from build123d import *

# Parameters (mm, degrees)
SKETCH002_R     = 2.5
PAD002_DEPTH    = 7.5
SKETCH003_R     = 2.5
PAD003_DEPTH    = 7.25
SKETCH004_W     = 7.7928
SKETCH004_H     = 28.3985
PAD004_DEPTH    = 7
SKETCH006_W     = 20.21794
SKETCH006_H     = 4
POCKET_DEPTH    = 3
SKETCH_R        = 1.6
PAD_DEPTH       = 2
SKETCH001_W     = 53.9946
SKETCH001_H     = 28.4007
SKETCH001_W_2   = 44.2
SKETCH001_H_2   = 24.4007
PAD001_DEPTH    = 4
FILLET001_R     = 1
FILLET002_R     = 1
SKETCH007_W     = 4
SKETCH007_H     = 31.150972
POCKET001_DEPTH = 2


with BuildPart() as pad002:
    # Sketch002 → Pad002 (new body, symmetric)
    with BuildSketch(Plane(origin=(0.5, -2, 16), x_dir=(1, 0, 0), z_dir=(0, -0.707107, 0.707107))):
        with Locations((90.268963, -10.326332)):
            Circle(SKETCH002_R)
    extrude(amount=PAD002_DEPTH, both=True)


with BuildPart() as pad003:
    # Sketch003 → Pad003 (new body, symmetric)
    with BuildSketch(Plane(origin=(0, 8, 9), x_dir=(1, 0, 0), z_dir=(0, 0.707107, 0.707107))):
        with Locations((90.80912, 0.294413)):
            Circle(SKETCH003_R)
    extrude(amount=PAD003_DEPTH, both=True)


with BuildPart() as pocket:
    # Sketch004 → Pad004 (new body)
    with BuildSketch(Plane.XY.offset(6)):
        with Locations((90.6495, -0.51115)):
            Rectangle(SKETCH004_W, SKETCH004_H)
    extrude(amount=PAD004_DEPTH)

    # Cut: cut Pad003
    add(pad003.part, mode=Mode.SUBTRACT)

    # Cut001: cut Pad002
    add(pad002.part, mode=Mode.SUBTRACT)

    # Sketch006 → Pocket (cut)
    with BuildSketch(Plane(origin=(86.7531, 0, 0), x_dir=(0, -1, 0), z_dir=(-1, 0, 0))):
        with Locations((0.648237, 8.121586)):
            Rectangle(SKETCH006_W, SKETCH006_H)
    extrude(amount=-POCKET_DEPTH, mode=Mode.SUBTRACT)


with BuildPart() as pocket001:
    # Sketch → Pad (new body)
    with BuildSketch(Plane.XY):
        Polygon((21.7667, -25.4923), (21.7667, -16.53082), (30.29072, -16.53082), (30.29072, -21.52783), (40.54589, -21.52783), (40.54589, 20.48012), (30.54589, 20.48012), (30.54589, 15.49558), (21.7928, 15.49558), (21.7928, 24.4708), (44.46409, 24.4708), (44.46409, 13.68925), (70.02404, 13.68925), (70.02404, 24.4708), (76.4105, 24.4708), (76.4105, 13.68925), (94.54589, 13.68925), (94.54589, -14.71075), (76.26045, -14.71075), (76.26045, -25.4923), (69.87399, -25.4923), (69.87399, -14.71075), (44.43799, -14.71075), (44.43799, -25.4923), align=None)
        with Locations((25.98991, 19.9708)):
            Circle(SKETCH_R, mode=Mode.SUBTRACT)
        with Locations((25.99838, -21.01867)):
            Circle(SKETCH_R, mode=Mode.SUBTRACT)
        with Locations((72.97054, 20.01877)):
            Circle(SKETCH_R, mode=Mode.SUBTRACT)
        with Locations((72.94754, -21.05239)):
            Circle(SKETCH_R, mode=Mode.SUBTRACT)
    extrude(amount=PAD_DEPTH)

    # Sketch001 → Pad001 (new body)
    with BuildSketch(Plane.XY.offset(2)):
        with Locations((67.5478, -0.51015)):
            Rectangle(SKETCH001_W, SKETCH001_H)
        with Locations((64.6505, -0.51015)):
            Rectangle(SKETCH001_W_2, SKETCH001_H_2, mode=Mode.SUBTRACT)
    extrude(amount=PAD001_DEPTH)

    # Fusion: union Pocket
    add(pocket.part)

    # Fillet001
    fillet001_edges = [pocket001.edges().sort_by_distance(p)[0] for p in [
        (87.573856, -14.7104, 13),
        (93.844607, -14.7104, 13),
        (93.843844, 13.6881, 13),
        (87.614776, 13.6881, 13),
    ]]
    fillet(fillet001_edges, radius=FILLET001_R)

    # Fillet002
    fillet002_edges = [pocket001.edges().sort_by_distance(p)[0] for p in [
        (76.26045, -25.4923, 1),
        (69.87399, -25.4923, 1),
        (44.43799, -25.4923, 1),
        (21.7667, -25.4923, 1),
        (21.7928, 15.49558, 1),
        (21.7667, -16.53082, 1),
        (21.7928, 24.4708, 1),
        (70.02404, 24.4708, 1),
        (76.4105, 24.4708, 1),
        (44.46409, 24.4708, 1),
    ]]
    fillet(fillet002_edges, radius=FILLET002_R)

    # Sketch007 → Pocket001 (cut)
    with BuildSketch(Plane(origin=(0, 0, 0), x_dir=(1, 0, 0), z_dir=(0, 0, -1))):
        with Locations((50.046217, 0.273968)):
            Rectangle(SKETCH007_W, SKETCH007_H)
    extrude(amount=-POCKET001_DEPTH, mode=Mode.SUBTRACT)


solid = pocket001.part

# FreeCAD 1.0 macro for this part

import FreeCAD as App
import Part
import Sketcher
from FreeCAD import Vector
Q = App.Units.Quantity


def edges_at(feature, points):
    """Names of the edges that pass closest to the given points."""
    edges = feature.Shape.Edges
    near = lambda p: min(range(len(edges)), key=lambda i: edges[i].distToShape(Part.Vertex(*p))[0])
    return sorted({f"Edge{near(p) + 1}" for p in points})


def add_polygon(sketch, points):
    """Adds a closed chain of lines whose ends are joined by coincident constraints."""
    first, n = sketch.GeometryCount, len(points)
    for a, b in zip(points, points[1:] + points[:1]):
        sketch.addGeometry(Part.LineSegment(App.Vector(*a, 0), App.Vector(*b, 0)), False)
    for i in range(n):
        sketch.addConstraint(Sketcher.Constraint("Coincident", first + i, 2, first + (i + 1) % n, 1))

doc = App.newDocument("Part")
body = doc.addObject("PartDesign::Body", "Body")

# Sketch on an angled plane
sketch1 = doc.addObject("Sketcher::SketchObject", "Sketch")
body.addObject(sketch1)
sketch1.Placement = App.Placement(Vector(0.5, -2, 16), App.Rotation(Vector(1, 0, 0), Vector(0, 0.707106781, 0.707106781), Vector(0, -0.707106781, 0.707106781), "ZXY"))
sketch1.addGeometry(Part.Circle(Vector(90.3, -10.3, 0), Vector(0, 0, 1), 2.5), False)
sketch1.addConstraint(Sketcher.Constraint("Diameter", 0, Q("5 mm")))
sketch1.addConstraint(Sketcher.Constraint("DistanceY", 0, 3, -1, 1, Q("10.326332 mm")))
sketch1.addConstraint(Sketcher.Constraint("DistanceX", -1, 1, 0, 3, Q("90.268963 mm")))
pad1 = doc.addObject("PartDesign::Pad", "Pad")
body.addObject(pad1)
pad1.Profile = sketch1
pad1.Length = 15
pad1.Midplane = True
body2 = doc.addObject("PartDesign::Body", "Body001")

# Sketch on an angled plane
sketch2 = doc.addObject("Sketcher::SketchObject", "Sketch001")
body2.addObject(sketch2)
sketch2.Placement = App.Placement(Vector(0, 8, 9), App.Rotation(Vector(1, 0, 0), Vector(0, 0.707106781, -0.707106781), Vector(0, 0.707106781, 0.707106781), "ZXY"))
sketch2.addGeometry(Part.Circle(Vector(90.8, 0.3, 0), Vector(0, 0, 1), 2.5), False)
sketch2.addConstraint(Sketcher.Constraint("Diameter", 0, Q("5 mm")))
sketch2.addConstraint(Sketcher.Constraint("DistanceX", -1, 1, 0, 3, Q("90.80912 mm")))
sketch2.addConstraint(Sketcher.Constraint("DistanceY", -1, 1, 0, 3, Q("0.294413 mm")))
pad2 = doc.addObject("PartDesign::Pad", "Pad001")
body2.addObject(pad2)
pad2.Profile = sketch2
pad2.Length = 14.5
pad2.Midplane = True
body3 = doc.addObject("PartDesign::Body", "Body002")

# Sketch on XY plane
sketch3 = doc.addObject("Sketcher::SketchObject", "Sketch002")
body3.addObject(sketch3)
sketch3.AttachmentSupport = (doc.getObject("XY_Plane002"), [""])
sketch3.MapMode = "FlatFace"
sketch3.AttachmentOffset = App.Placement(Vector(0, 0, 6), App.Rotation())
add_polygon(sketch3, [(87, 14), (87, -15), (95, -15), (95, 14)])  # lines 0-3
sketch3.addConstraint(Sketcher.Constraint("Vertical", 0))
sketch3.addConstraint(Sketcher.Constraint("Horizontal", 1))
sketch3.addConstraint(Sketcher.Constraint("Vertical", 2))
sketch3.addConstraint(Sketcher.Constraint("Horizontal", 3))
sketch3.addConstraint(Sketcher.Constraint("DistanceX", 1, 1, 1, 2, Q("7.7928 mm")))
sketch3.addConstraint(Sketcher.Constraint("DistanceY", 0, 2, 0, 1, Q("28.3985 mm")))
sketch3.addConstraint(Sketcher.Constraint("DistanceX", -1, 1, 0, 2, Q("86.7531 mm")))
sketch3.addConstraint(Sketcher.Constraint("DistanceY", 0, 2, -1, 1, Q("14.7104 mm")))
pad3 = doc.addObject("PartDesign::Pad", "Pad002")
body3.addObject(pad3)
pad3.Profile = sketch3
pad3.Length = 7
doc.recompute()

boolean = doc.addObject("PartDesign::Boolean", "Boolean")
body3.addObject(boolean)
boolean.Type = "Cut"
boolean.addObjects([body2])
doc.recompute()

boolean2 = doc.addObject("PartDesign::Boolean", "Boolean001")
body3.addObject(boolean2)
boolean2.Type = "Cut"
boolean2.addObjects([body])

# Sketch on YZ plane
sketch4 = doc.addObject("Sketcher::SketchObject", "Sketch003")
body3.addObject(sketch4)
sketch4.AttachmentSupport = (doc.getObject("YZ_Plane002"), [""])
sketch4.MapMode = "FlatFace"
sketch4.AttachmentOffset = App.Placement(Vector(0, 0, 86.7531), App.Rotation())
add_polygon(sketch4, [(9.5, 10.1), (9.5, 6.1), (-10.8, 6.1), (-10.8, 10.1)])  # lines 0-3
sketch4.addConstraint(Sketcher.Constraint("Vertical", 0))
sketch4.addConstraint(Sketcher.Constraint("Horizontal", 1))
sketch4.addConstraint(Sketcher.Constraint("Vertical", 2))
sketch4.addConstraint(Sketcher.Constraint("Horizontal", 3))
sketch4.addConstraint(Sketcher.Constraint("DistanceY", 0, 2, 0, 1, Q("4 mm")))
sketch4.addConstraint(Sketcher.Constraint("DistanceX", 1, 2, 1, 1, Q("20.21794 mm")))
sketch4.addConstraint(Sketcher.Constraint("DistanceX", -1, 1, 0, 2, Q("9.460733 mm")))
sketch4.addConstraint(Sketcher.Constraint("DistanceY", -1, 1, 0, 2, Q("6.121586 mm")))
pocket1 = doc.addObject("PartDesign::Pocket", "Pocket")
body3.addObject(pocket1)
pocket1.Profile = sketch4
pocket1.Length = 3
pocket1.Reversed = True
body4 = doc.addObject("PartDesign::Body", "Body003")

# Sketch on XY plane
sketch5 = doc.addObject("Sketcher::SketchObject", "Sketch004")
body4.addObject(sketch5)
sketch5.AttachmentSupport = (doc.getObject("XY_Plane003"), [""])
sketch5.MapMode = "FlatFace"
add_polygon(sketch5, [(21.8, -16.5), (21.8, -25.5), (44.4, -25.5), (44.4, -14.7), (69.9, -14.7), (69.9, -25.5), (76.3, -25.5), (76.3, -14.7), (94.5, -14.7), (94.5, 13.7), (76.4, 13.7), (76.4, 24.5), (70, 24.5), (70, 13.7), (44.5, 13.7), (44.5, 24.5), (21.8, 24.5), (21.8, 15.5), (30.5, 15.5), (30.5, 20.5), (40.5, 20.5), (40.5, -21.5), (30.3, -21.5), (30.3, -16.5)])  # lines 0-23
sketch5.addGeometry(Part.Circle(Vector(72.9, -21.1, 0), Vector(0, 0, 1), 1.6), False)  # 24
sketch5.addGeometry(Part.Circle(Vector(26, -21, 0), Vector(0, 0, 1), 1.6), False)  # 25
sketch5.addGeometry(Part.Circle(Vector(73, 20, 0), Vector(0, 0, 1), 1.6), False)  # 26
sketch5.addGeometry(Part.Circle(Vector(26, 20, 0), Vector(0, 0, 1), 1.6), False)  # 27
sketch5.addConstraint(Sketcher.Constraint("Vertical", 0))
sketch5.addConstraint(Sketcher.Constraint("Horizontal", 1))
sketch5.addConstraint(Sketcher.Constraint("Vertical", 2))
sketch5.addConstraint(Sketcher.Constraint("Horizontal", 3))
sketch5.addConstraint(Sketcher.Constraint("Vertical", 4))
sketch5.addConstraint(Sketcher.Constraint("Horizontal", 5))
sketch5.addConstraint(Sketcher.Constraint("Vertical", 6))
sketch5.addConstraint(Sketcher.Constraint("Horizontal", 7))
sketch5.addConstraint(Sketcher.Constraint("Vertical", 8))
sketch5.addConstraint(Sketcher.Constraint("Horizontal", 9))
sketch5.addConstraint(Sketcher.Constraint("Vertical", 10))
sketch5.addConstraint(Sketcher.Constraint("Horizontal", 11))
sketch5.addConstraint(Sketcher.Constraint("Vertical", 12))
sketch5.addConstraint(Sketcher.Constraint("Horizontal", 13))
sketch5.addConstraint(Sketcher.Constraint("Vertical", 14))
sketch5.addConstraint(Sketcher.Constraint("Horizontal", 15))
sketch5.addConstraint(Sketcher.Constraint("Vertical", 16))
sketch5.addConstraint(Sketcher.Constraint("Horizontal", 17))
sketch5.addConstraint(Sketcher.Constraint("Vertical", 18))
sketch5.addConstraint(Sketcher.Constraint("Horizontal", 19))
sketch5.addConstraint(Sketcher.Constraint("Vertical", 20))
sketch5.addConstraint(Sketcher.Constraint("Horizontal", 21))
sketch5.addConstraint(Sketcher.Constraint("Vertical", 22))
sketch5.addConstraint(Sketcher.Constraint("Horizontal", 23))
sketch5.addConstraint(Sketcher.Constraint("Equal", 24, 25))
sketch5.addConstraint(Sketcher.Constraint("Equal", 25, 26))
sketch5.addConstraint(Sketcher.Constraint("Equal", 26, 27))
sketch5.addConstraint(Sketcher.Constraint("Horizontal", 1, 2, 4, 2))
sketch5.addConstraint(Sketcher.Constraint("Horizontal", 3, 2, 6, 2))
sketch5.addConstraint(Sketcher.Constraint("Horizontal", 9, 2, 12, 2))
sketch5.addConstraint(Sketcher.Constraint("Horizontal", 11, 2, 14, 2))
sketch5.addConstraint(Sketcher.Constraint("Equal", 5, 11))
sketch5.addConstraint(Sketcher.Constraint("Equal", 1, 15))
sketch5.addConstraint(Sketcher.Constraint("Equal", 6, 10))
sketch5.addConstraint(Sketcher.Constraint("Diameter", 24, Q("3.2 mm")))
sketch5.addConstraint(Sketcher.Constraint("DistanceX", 19, 1, 19, 2, Q("10 mm")))
sketch5.addConstraint(Sketcher.Constraint("DistanceY", 8, 1, 8, 2, Q("28.4 mm")))
sketch5.addConstraint(Sketcher.Constraint("DistanceY", 27, 3, 14, 2, Q("4.5 mm")))
sketch5.addConstraint(Sketcher.Constraint("DistanceX", 3, 1, 3, 2, Q("25.436 mm")))
sketch5.addConstraint(Sketcher.Constraint("DistanceX", 24, 3, 26, 3, Q("0.023 mm")))
sketch5.addConstraint(Sketcher.Constraint("DistanceX", 1, 1, 1, 2, Q("22.67129 mm")))
sketch5.addConstraint(Sketcher.Constraint("DistanceX", 5, 1, 5, 2, Q("6.38646 mm")))
sketch5.addConstraint(Sketcher.Constraint("DistanceX", 7, 1, 7, 2, Q("18.28544 mm")))
sketch5.addConstraint(Sketcher.Constraint("DistanceX", 9, 2, 9, 1, Q("18.13539 mm")))
sketch5.addConstraint(Sketcher.Constraint("DistanceX", 13, 2, 13, 1, Q("25.55995 mm")))
sketch5.addConstraint(Sketcher.Constraint("DistanceX", 17, 1, 17, 2, Q("8.75309 mm")))
sketch5.addConstraint(Sketcher.Constraint("DistanceX", 21, 2, 21, 1, Q("10.25517 mm")))
sketch5.addConstraint(Sketcher.Constraint("DistanceY", 0, 2, 0, 1, Q("8.96148 mm")))
sketch5.addConstraint(Sketcher.Constraint("DistanceY", 2, 1, 2, 2, Q("10.78155 mm")))
sketch5.addConstraint(Sketcher.Constraint("DistanceY", 16, 2, 16, 1, Q("8.97522 mm")))
sketch5.addConstraint(Sketcher.Constraint("DistanceY", 18, 1, 18, 2, Q("4.98454 mm")))
sketch5.addConstraint(Sketcher.Constraint("DistanceY", 20, 2, 20, 1, Q("42.00795 mm")))
sketch5.addConstraint(Sketcher.Constraint("DistanceY", -1, 1, 27, 3, Q("19.9708 mm")))
sketch5.addConstraint(Sketcher.Constraint("DistanceX", -1, 1, 0, 2, Q("21.7667 mm")))
sketch5.addConstraint(Sketcher.Constraint("DistanceX", 11, 2, 26, 3, Q("2.9465 mm")))
sketch5.addConstraint(Sketcher.Constraint("DistanceY", 24, 3, -1, 1, Q("21.05239 mm")))
sketch5.addConstraint(Sketcher.Constraint("DistanceX", -1, 1, 25, 3, Q("25.99838 mm")))
sketch5.addConstraint(Sketcher.Constraint("DistanceY", 25, 3, -1, 1, Q("21.01867 mm")))
sketch5.addConstraint(Sketcher.Constraint("DistanceY", -1, 1, 26, 3, Q("20.01877 mm")))
sketch5.addConstraint(Sketcher.Constraint("DistanceX", -1, 1, 27, 3, Q("25.98991 mm")))
pad4 = doc.addObject("PartDesign::Pad", "Pad003")
body4.addObject(pad4)
pad4.Profile = sketch5
pad4.Length = 2

# Sketch on XY plane
sketch6 = doc.addObject("Sketcher::SketchObject", "Sketch005")
body4.addObject(sketch6)
sketch6.AttachmentSupport = (doc.getObject("XY_Plane003"), [""])
sketch6.MapMode = "FlatFace"
sketch6.AttachmentOffset = App.Placement(Vector(0, 0, 2), App.Rotation())
add_polygon(sketch6, [(41, 14), (41, -15), (95, -15), (95, 14)])  # lines 0-3
add_polygon(sketch6, [(87, -13), (43, -13), (43, 12), (87, 12)])  # lines 4-7
sketch6.addConstraint(Sketcher.Constraint("Vertical", 0))
sketch6.addConstraint(Sketcher.Constraint("Horizontal", 1))
sketch6.addConstraint(Sketcher.Constraint("Vertical", 2))
sketch6.addConstraint(Sketcher.Constraint("Horizontal", 3))
sketch6.addConstraint(Sketcher.Constraint("Horizontal", 4))
sketch6.addConstraint(Sketcher.Constraint("Vertical", 5))
sketch6.addConstraint(Sketcher.Constraint("Horizontal", 6))
sketch6.addConstraint(Sketcher.Constraint("Vertical", 7))
sketch6.addConstraint(Sketcher.Constraint("DistanceX", 4, 2, 4, 1, Q("44.2 mm")))
sketch6.addConstraint(Sketcher.Constraint("DistanceX", 0, 2, 4, 2, Q("2 mm")))
sketch6.addConstraint(Sketcher.Constraint("DistanceY", 0, 2, 4, 2, Q("2 mm")))
sketch6.addConstraint(Sketcher.Constraint("DistanceY", 5, 2, 3, 2, Q("2 mm")))
sketch6.addConstraint(Sketcher.Constraint("DistanceX", 1, 1, 1, 2, Q("53.9946 mm")))
sketch6.addConstraint(Sketcher.Constraint("DistanceY", 0, 2, 0, 1, Q("28.4007 mm")))
sketch6.addConstraint(Sketcher.Constraint("DistanceX", -1, 1, 0, 2, Q("40.5505 mm")))
sketch6.addConstraint(Sketcher.Constraint("DistanceY", 0, 2, -1, 1, Q("14.7105 mm")))
pad5 = doc.addObject("PartDesign::Pad", "Pad004")
body4.addObject(pad5)
pad5.Profile = sketch6
pad5.Length = 4
doc.recompute()

boolean3 = doc.addObject("PartDesign::Boolean", "Boolean002")
body4.addObject(boolean3)
boolean3.Type = "Fuse"
boolean3.addObjects([body3])
doc.recompute()

fillet = doc.addObject("PartDesign::Fillet", "Fillet")
body4.addObject(fillet)
fillet.Base = (boolean3, edges_at(boolean3, [
    (87.574, -14.71, 13),
    (93.845, -14.71, 13),
    (93.844, 13.688, 13),
    (87.615, 13.688, 13),
]))
fillet.Radius = 1
doc.recompute()

fillet2 = doc.addObject("PartDesign::Fillet", "Fillet001")
body4.addObject(fillet2)
fillet2.Base = (fillet, edges_at(fillet, [
    (76.26, -25.492, 1),
    (69.874, -25.492, 1),
    (44.438, -25.492, 1),
    (21.767, -25.492, 1),
    (21.793, 15.496, 1),
    (21.767, -16.531, 1),
    (21.793, 24.471, 1),
    (70.024, 24.471, 1),
    (76.41, 24.471, 1),
    (44.464, 24.471, 1),
]))
fillet2.Radius = 1

# Sketch on XY plane
sketch7 = doc.addObject("Sketcher::SketchObject", "Sketch006")
body4.addObject(sketch7)
sketch7.AttachmentSupport = (doc.getObject("XY_Plane003"), [""])
sketch7.MapMode = "FlatFace"
add_polygon(sketch7, [(48, -15.8), (48, 15.3), (52, 15.3), (52, -15.8)])  # lines 0-3
sketch7.addConstraint(Sketcher.Constraint("Vertical", 0))
sketch7.addConstraint(Sketcher.Constraint("Horizontal", 1))
sketch7.addConstraint(Sketcher.Constraint("Vertical", 2))
sketch7.addConstraint(Sketcher.Constraint("Horizontal", 3))
sketch7.addConstraint(Sketcher.Constraint("DistanceX", 1, 1, 1, 2, Q("4 mm")))
sketch7.addConstraint(Sketcher.Constraint("DistanceY", 0, 1, 0, 2, Q("31.150972 mm")))
sketch7.addConstraint(Sketcher.Constraint("DistanceX", -1, 1, 0, 2, Q("48.046217 mm")))
sketch7.addConstraint(Sketcher.Constraint("DistanceY", -1, 1, 0, 2, Q("15.301518 mm")))
pocket2 = doc.addObject("PartDesign::Pocket", "Pocket001")
body4.addObject(pocket2)
pocket2.Profile = sketch7
pocket2.Length = 2
pocket2.Reversed = True

doc.recompute()
